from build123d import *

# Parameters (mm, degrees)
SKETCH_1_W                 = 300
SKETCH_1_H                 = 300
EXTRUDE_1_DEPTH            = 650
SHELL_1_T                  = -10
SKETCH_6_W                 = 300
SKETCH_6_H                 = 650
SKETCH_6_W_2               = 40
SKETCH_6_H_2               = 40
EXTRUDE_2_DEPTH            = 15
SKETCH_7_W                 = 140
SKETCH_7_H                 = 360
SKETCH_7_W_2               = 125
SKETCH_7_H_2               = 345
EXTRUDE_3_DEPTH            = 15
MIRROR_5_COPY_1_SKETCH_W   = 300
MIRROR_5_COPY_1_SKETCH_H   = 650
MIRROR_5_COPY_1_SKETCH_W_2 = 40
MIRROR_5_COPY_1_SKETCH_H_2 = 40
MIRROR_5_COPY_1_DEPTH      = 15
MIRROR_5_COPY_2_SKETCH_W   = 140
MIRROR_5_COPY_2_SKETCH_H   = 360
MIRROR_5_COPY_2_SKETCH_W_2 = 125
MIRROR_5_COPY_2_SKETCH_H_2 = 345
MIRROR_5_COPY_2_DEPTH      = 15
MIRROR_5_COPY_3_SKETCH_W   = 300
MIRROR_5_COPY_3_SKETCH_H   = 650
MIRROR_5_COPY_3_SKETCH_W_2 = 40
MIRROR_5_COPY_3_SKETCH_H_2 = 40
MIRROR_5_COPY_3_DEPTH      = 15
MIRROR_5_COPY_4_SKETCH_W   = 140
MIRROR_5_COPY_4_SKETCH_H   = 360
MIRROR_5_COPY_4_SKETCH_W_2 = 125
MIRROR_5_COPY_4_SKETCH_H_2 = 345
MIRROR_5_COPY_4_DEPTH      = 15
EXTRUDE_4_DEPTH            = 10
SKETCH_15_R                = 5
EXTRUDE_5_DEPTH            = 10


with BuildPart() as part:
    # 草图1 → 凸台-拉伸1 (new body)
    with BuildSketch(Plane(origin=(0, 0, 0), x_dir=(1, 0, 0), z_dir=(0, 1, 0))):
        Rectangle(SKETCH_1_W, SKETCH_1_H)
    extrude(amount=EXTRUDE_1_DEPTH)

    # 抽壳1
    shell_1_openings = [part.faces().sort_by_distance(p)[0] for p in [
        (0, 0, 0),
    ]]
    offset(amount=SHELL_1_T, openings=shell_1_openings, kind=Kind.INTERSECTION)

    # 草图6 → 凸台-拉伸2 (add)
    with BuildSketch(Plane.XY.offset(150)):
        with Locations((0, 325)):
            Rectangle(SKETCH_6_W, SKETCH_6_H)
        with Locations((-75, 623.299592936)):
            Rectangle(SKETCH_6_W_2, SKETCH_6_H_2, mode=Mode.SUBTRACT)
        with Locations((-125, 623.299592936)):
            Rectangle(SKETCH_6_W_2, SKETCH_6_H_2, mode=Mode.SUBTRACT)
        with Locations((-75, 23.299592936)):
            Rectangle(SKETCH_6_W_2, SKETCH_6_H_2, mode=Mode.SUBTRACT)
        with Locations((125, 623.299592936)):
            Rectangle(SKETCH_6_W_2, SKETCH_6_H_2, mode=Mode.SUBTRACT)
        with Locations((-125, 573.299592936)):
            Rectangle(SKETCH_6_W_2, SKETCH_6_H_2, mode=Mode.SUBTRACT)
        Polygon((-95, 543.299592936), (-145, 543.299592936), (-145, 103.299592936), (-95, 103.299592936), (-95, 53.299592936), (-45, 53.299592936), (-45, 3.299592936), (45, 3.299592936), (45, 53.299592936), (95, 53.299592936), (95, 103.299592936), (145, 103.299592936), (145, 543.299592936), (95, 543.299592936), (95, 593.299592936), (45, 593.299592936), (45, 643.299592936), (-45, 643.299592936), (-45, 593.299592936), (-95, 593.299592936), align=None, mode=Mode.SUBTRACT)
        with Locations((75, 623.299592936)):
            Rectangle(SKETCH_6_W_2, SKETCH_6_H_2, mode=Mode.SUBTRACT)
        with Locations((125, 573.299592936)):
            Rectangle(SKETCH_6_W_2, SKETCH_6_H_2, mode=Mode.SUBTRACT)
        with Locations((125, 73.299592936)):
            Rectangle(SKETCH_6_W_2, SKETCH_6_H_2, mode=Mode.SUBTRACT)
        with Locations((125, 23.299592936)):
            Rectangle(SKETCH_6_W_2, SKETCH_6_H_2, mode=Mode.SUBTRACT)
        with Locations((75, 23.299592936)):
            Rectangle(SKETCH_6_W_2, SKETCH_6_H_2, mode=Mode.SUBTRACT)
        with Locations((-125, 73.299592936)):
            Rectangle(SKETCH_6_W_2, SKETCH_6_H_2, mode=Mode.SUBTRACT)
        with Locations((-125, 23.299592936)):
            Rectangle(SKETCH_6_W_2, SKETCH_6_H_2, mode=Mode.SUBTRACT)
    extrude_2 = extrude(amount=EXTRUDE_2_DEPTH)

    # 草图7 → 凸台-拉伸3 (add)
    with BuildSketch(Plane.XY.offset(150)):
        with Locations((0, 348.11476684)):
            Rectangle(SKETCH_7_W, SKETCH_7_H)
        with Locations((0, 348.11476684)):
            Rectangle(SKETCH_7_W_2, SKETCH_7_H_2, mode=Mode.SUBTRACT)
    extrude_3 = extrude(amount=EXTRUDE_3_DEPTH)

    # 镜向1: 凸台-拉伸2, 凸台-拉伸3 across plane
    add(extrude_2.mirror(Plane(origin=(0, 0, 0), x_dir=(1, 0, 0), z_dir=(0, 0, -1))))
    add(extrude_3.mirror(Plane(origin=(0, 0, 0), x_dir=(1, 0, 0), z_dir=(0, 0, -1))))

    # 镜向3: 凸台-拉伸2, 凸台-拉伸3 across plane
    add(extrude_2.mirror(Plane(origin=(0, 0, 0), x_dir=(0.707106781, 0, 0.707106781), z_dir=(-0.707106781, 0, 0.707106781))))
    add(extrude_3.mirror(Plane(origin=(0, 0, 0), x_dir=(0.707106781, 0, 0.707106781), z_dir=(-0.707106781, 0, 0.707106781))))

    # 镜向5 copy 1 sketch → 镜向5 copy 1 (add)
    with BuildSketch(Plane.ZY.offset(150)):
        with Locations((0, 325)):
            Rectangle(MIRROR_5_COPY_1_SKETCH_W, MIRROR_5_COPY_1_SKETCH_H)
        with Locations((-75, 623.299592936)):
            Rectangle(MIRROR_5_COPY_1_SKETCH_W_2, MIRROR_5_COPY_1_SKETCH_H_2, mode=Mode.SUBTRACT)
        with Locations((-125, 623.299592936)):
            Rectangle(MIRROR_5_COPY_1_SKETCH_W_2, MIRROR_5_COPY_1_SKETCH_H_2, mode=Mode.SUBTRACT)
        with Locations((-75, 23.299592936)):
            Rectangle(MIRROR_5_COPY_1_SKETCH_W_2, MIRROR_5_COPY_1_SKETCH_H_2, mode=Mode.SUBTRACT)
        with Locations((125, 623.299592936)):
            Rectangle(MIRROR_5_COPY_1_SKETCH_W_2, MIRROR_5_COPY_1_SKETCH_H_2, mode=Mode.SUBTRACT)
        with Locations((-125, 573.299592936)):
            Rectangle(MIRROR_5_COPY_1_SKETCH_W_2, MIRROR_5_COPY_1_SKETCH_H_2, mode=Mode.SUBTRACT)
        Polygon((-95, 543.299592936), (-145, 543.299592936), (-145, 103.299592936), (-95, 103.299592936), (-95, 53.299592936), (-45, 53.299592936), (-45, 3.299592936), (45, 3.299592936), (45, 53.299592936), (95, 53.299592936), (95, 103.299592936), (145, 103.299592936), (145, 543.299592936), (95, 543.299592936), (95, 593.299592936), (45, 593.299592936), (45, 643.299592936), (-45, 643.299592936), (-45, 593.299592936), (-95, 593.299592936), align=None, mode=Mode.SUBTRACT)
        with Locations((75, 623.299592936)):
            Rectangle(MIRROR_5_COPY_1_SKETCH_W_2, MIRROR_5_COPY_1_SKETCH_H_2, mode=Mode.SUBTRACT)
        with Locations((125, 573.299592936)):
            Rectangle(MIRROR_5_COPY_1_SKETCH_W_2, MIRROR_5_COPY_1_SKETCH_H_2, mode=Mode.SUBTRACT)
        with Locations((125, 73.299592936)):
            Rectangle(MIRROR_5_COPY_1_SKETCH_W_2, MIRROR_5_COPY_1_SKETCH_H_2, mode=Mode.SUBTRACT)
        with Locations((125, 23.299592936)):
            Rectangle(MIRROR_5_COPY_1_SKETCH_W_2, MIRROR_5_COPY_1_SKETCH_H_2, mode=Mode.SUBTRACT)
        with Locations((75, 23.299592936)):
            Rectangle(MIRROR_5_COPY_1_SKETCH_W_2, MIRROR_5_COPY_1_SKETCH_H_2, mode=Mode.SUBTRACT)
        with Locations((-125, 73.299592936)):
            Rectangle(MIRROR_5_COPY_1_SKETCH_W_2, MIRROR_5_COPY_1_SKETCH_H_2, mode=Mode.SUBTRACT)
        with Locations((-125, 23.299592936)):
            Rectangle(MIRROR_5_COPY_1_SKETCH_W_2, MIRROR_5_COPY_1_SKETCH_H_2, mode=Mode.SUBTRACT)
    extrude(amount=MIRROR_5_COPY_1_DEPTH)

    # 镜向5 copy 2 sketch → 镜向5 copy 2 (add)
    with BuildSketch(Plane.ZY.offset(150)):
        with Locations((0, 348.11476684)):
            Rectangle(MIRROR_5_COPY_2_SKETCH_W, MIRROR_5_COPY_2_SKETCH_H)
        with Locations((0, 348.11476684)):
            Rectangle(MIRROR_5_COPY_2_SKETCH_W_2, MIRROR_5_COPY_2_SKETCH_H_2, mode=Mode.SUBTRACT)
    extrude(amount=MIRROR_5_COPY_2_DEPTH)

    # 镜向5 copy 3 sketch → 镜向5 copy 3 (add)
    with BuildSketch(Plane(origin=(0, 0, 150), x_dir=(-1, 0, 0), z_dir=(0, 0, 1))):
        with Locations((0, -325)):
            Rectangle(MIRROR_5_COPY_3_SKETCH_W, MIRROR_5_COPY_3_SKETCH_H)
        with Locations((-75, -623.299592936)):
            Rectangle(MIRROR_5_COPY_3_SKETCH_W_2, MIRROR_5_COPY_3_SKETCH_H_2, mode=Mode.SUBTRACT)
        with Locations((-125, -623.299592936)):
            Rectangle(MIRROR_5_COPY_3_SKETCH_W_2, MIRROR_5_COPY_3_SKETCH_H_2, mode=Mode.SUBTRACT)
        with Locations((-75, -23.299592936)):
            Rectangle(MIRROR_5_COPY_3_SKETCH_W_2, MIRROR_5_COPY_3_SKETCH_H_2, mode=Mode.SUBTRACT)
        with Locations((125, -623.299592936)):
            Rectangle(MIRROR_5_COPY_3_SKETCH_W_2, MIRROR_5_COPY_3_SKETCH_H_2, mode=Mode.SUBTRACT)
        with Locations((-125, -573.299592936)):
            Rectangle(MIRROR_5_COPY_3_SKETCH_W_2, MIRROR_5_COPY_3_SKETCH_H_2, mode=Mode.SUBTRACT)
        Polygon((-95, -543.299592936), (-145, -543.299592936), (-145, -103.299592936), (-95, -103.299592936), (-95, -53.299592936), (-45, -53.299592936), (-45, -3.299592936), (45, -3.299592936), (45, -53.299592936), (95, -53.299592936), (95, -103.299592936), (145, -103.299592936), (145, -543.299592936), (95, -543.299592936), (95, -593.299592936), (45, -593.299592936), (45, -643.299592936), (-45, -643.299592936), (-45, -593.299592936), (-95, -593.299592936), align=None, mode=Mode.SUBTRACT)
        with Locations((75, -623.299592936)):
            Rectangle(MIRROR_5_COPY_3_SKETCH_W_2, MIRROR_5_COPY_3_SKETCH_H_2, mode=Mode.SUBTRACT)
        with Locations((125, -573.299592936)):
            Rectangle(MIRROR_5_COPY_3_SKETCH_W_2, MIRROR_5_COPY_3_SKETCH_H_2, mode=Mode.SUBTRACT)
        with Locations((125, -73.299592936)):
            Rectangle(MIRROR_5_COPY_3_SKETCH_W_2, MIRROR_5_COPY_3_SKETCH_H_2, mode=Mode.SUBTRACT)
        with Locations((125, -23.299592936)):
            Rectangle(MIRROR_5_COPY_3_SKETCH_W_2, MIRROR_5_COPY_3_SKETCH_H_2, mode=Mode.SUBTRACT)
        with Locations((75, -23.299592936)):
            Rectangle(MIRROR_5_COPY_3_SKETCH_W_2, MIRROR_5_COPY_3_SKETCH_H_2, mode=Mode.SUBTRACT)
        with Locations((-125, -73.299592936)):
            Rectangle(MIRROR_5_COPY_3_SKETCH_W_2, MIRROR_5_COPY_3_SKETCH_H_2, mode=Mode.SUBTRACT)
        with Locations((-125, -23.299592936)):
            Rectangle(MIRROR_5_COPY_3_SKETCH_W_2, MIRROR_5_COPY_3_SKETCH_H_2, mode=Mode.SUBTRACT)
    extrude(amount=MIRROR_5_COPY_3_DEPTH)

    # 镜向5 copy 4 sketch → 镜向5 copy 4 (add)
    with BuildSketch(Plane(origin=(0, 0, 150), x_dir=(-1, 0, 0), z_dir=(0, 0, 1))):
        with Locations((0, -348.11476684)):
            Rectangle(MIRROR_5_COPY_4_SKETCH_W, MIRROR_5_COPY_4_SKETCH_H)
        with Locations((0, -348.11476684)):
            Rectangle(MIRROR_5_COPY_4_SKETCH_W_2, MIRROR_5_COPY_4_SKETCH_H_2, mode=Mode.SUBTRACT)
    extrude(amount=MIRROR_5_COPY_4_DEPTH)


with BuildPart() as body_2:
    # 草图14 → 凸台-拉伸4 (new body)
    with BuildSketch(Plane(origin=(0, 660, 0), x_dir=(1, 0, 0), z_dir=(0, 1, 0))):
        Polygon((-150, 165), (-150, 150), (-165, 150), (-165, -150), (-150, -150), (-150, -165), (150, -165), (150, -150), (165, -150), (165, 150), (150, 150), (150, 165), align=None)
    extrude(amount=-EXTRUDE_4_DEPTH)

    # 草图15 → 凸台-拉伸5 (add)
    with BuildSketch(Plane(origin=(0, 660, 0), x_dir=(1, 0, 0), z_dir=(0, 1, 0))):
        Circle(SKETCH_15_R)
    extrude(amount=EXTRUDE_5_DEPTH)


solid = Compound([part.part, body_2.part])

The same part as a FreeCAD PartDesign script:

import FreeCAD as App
import Part
import Sketcher
Q = App.Units.Quantity


def faces_at(feature, points):
    """Names of the faces that lie closest to the given points."""
    faces = feature.Shape.Faces
    near = lambda p: min(range(len(faces)), key=lambda i: faces[i].distToShape(Part.Vertex(*p))[0])
    return sorted({f"Face{near(p) + 1}" for p in points})


def add_polygon(sketch, points):
    """Adds a closed chain of lines whose ends are joined by coincident constraints."""
    first, n = sketch.GeometryCount, len(points)
    for a, b in zip(points, points[1:] + points[:1]):
        sketch.addGeometry(Part.LineSegment(App.Vector(*a, 0), App.Vector(*b, 0)), False)
    for i in range(n):
        sketch.addConstraint(Sketcher.Constraint("Coincident", first + i, 2, first + (i + 1) % n, 1))

doc = App.newDocument("Part")
body = doc.addObject("PartDesign::Body", "Body")

sketch1 = body.newObject("Sketcher::SketchObject", "Sketch")
sketch1.AttachmentSupport = (doc.getObject("XZ_Plane"), [""])
sketch1.MapMode = "FlatFace"
add_polygon(sketch1, [(-150, -150), (-150, 150), (150, 150), (150, -150)])
sketch1.addConstraint([
    Sketcher.Constraint("Vertical", 0),
    Sketcher.Constraint("Horizontal", 1),
    Sketcher.Constraint("Vertical", 2),
    Sketcher.Constraint("Horizontal", 3),
    Sketcher.Constraint("Symmetric", 0, 2, 2, 2, -1, 1),
    Sketcher.Constraint("Equal", 3, 0),
    Sketcher.Constraint("DistanceX", 1, 1, 1, 2, Q("300 mm")),
])
pad1 = body.newObject("PartDesign::Pad", "Pad")
pad1.Profile = sketch1
pad1.Length = 650
pad1.Reversed = True
doc.recompute()

thickness = body.newObject("PartDesign::Thickness", "Thickness")
thickness.Base = (pad1, faces_at(pad1, [(0, 0, 0)]))
thickness.Value = 10
thickness.Reversed = True
thickness.Join = "Intersection"

sketch2 = body.newObject("Sketcher::SketchObject", "Sketch001")
sketch2.AttachmentSupport = (doc.getObject("XY_Plane"), [""])
sketch2.MapMode = "FlatFace"
sketch2.AttachmentOffset = App.Placement(App.Vector(0, 0, 150), App.Rotation())
add_polygon(sketch2, [(-150, 650), (-150, 0), (150, 0), (150, 650)])
add_polygon(sketch2, [(-105, 3), (-145, 3), (-145, 43), (-105, 43)])
add_polygon(sketch2, [(-105, 53), (-145, 53), (-145, 93), (-105, 93)])
add_polygon(sketch2, [(-55, 3), (-95, 3), (-95, 43), (-55, 43)])
add_polygon(sketch2, [(95, 3), (55, 3), (55, 43), (95, 43)])
add_polygon(sketch2, [(145, 3), (105, 3), (105, 43), (145, 43)])
add_polygon(sketch2, [(145, 53), (105, 53), (105, 93), (145, 93)])
add_polygon(sketch2, [(-105, 553), (-145, 553), (-145, 593), (-105, 593)])
add_polygon(sketch2, [(-105, 603), (-145, 603), (-145, 643), (-105, 643)])
add_polygon(sketch2, [(-55, 603), (-95, 603), (-95, 643), (-55, 643)])
add_polygon(sketch2, [(-145, 543), (-95, 543), (-95, 593), (-45, 593), (-45, 643), (45, 643), (45, 593), (95, 593), (95, 543), (145, 543), (145, 103), (95, 103), (95, 53), (45, 53), (45, 3), (-45, 3), (-45, 53), (-95, 53), (-95, 103), (-145, 103)])
add_polygon(sketch2, [(95, 603), (55, 603), (55, 643), (95, 643)])
add_polygon(sketch2, [(145, 553), (105, 553), (105, 593), (145, 593)])
add_polygon(sketch2, [(145, 603), (105, 603), (105, 643), (145, 643)])
sketch2.addConstraint([
    Sketcher.Constraint("Vertical", 0),
    Sketcher.Constraint("Horizontal", 1),
    Sketcher.Constraint("Vertical", 2),
    Sketcher.Constraint("Horizontal", 3),
    Sketcher.Constraint("Horizontal", 4),
    Sketcher.Constraint("Vertical", 5),
    Sketcher.Constraint("Horizontal", 6),
    Sketcher.Constraint("Vertical", 7),
    Sketcher.Constraint("Horizontal", 8),
    Sketcher.Constraint("Vertical", 9),
    Sketcher.Constraint("Horizontal", 10),
    Sketcher.Constraint("Vertical", 11),
    Sketcher.Constraint("Horizontal", 12),
    Sketcher.Constraint("Vertical", 13),
    Sketcher.Constraint("Horizontal", 14),
    Sketcher.Constraint("Vertical", 15),
    Sketcher.Constraint("Horizontal", 16),
    Sketcher.Constraint("Vertical", 17),
    Sketcher.Constraint("Horizontal", 18),
    Sketcher.Constraint("Vertical", 19),
    Sketcher.Constraint("Horizontal", 20),
    Sketcher.Constraint("Vertical", 21),
    Sketcher.Constraint("Horizontal", 22),
    Sketcher.Constraint("Vertical", 23),
    Sketcher.Constraint("Horizontal", 24),
    Sketcher.Constraint("Vertical", 25),
    Sketcher.Constraint("Horizontal", 26),
    Sketcher.Constraint("Vertical", 27),
    Sketcher.Constraint("Horizontal", 28),
    Sketcher.Constraint("Vertical", 29),
    Sketcher.Constraint("Horizontal", 30),
    Sketcher.Constraint("Vertical", 31),
    Sketcher.Constraint("Horizontal", 32),
    Sketcher.Constraint("Vertical", 33),
    Sketcher.Constraint("Horizontal", 34),
    Sketcher.Constraint("Vertical", 35),
    Sketcher.Constraint("Horizontal", 36),
    Sketcher.Constraint("Vertical", 37),
    Sketcher.Constraint("Horizontal", 38),
    Sketcher.Constraint("Vertical", 39),
    Sketcher.Constraint("Horizontal", 40),
    Sketcher.Constraint("Vertical", 41),
    Sketcher.Constraint("Horizontal", 42),
    Sketcher.Constraint("Vertical", 43),
    Sketcher.Constraint("Horizontal", 44),
    Sketcher.Constraint("Vertical", 45),
    Sketcher.Constraint("Horizontal", 46),
    Sketcher.Constraint("Vertical", 47),
    Sketcher.Constraint("Horizontal", 48),
    Sketcher.Constraint("Vertical", 49),
    Sketcher.Constraint("Horizontal", 50),
    Sketcher.Constraint("Vertical", 51),
    Sketcher.Constraint("Horizontal", 52),
    Sketcher.Constraint("Vertical", 53),
    Sketcher.Constraint("Horizontal", 54),
    Sketcher.Constraint("Vertical", 55),
    Sketcher.Constraint("Horizontal", 56),
    Sketcher.Constraint("Vertical", 57),
    Sketcher.Constraint("Horizontal", 58),
    Sketcher.Constraint("Vertical", 59),
    Sketcher.Constraint("Horizontal", 60),
    Sketcher.Constraint("Vertical", 61),
    Sketcher.Constraint("Horizontal", 62),
    Sketcher.Constraint("Vertical", 63),
    Sketcher.Constraint("Horizontal", 64),
    Sketcher.Constraint("Vertical", 65),
    Sketcher.Constraint("Horizontal", 66),
    Sketcher.Constraint("Vertical", 67),
    Sketcher.Constraint("Horizontal", 68),
    Sketcher.Constraint("Vertical", 69),
    Sketcher.Constraint("Horizontal", 70),
    Sketcher.Constraint("Vertical", 71),
    Sketcher.Constraint("Symmetric", 0, 2, 1, 2, -1, 1),
    Sketcher.Constraint("Symmetric", 15, 2, 16, 2, -2),
    Sketcher.Constraint("Symmetric", 13, 2, 18, 2, -2),
    Sketcher.Constraint("Symmetric", 7, 2, 20, 2, -2),
    Sketcher.Constraint("Symmetric", 5, 2, 22, 2, -2),
    Sketcher.Constraint("Symmetric", 11, 2, 24, 2, -2),
    Sketcher.Constraint("Symmetric", 9, 2, 26, 2, -2),
    Sketcher.Constraint("Symmetric", 42, 2, 45, 2, -2),
    Sketcher.Constraint("Symmetric", 40, 2, 47, 2, -2),
    Sketcher.Constraint("Symmetric", 52, 2, 55, 2, -2),
    Sketcher.Constraint("Symmetric", 50, 2, 57, 2, -2),
    Sketcher.Constraint("Symmetric", 39, 2, 60, 2, -2),
    Sketcher.Constraint("Symmetric", 37, 2, 62, 2, -2),
    Sketcher.Constraint("Symmetric", 31, 2, 64, 2, -2),
    Sketcher.Constraint("Symmetric", 29, 2, 66, 2, -2),
    Sketcher.Constraint("Symmetric", 35, 2, 68, 2, -2),
    Sketcher.Constraint("Symmetric", 33, 2, 70, 2, -2),
    Sketcher.Constraint("Horizontal", 7, 2, 12, 2),
    Sketcher.Constraint("Horizontal", 6, 2, 13, 2),
    Sketcher.Constraint("Horizontal", 35, 2, 36, 2),
    Sketcher.Constraint("Horizontal", 34, 2, 37, 2),
    Sketcher.Constraint("Horizontal", 30, 2, 41, 2),
    Sketcher.Constraint("Horizontal", 38, 2, 43, 2),
    Sketcher.Constraint("Horizontal", 27, 2, 51, 2),
    Sketcher.Constraint("Horizontal", 23, 2, 53, 2),
    Sketcher.Constraint("Vertical", 5, 2, 8, 2),
    Sketcher.Constraint("Vertical", 7, 2, 10, 2),
    Sketcher.Constraint("Vertical", 9, 2, 28, 2),
    Sketcher.Constraint("Vertical", 11, 2, 30, 2),
    Sketcher.Constraint("Vertical", 29, 2, 32, 2),
    Sketcher.Constraint("Vertical", 31, 2, 34, 2),
    Sketcher.Constraint("Vertical", 13, 2, 36, 2),
    Sketcher.Constraint("Vertical", 15, 2, 38, 2),
    Sketcher.Constraint("Vertical", 37, 2, 40, 2),
    Sketcher.Constraint("Vertical", 27, 2, 48, 2),
    Sketcher.Constraint("Vertical", 47, 2, 50, 2),
    Sketcher.Constraint("Vertical", 45, 2, 52, 2),
    Sketcher.Constraint("Vertical", 33, 2, 58, 2),
    Sketcher.Constraint("Equal", 10, 12),
    Sketcher.Constraint("Equal", 40, 42),
    Sketcher.Constraint("Equal", 70, 5),
    Sketcher.Constraint("Equal", 7, 9),
    Sketcher.Constraint("Equal", 27, 29),
    Sketcher.Constraint("Equal", 31, 33),
    Sketcher.Constraint("Equal", 58, 41),
    Sketcher.Constraint("Equal", 41, 43),
    Sketcher.Constraint("Equal", 47, 51),
    Sketcher.Constraint("Equal", 51, 53),
    Sketcher.Constraint("DistanceX", 1, 1, 1, 2, Q("300 mm")),
    Sketcher.Constraint("DistanceX", 4, 2, 4, 1, Q("40 mm")),
    Sketcher.Constraint("DistanceX", 40, 1, 40, 2, Q("50 mm")),
    Sketcher.Constraint("DistanceX", 44, 1, 44, 2, Q("90 mm")),
    Sketcher.Constraint("DistanceY", 0, 2, 0, 1, Q("650 mm")),
    Sketcher.Constraint("DistanceY", 49, 2, 49, 1, Q("440 mm")),
    Sketcher.Constraint("DistanceY", -1, 1, 4, 2, Q("3.299593 mm")),
])
pad2 = body.newObject("PartDesign::Pad", "Pad001")
pad2.Profile = sketch2
pad2.Length = 15

sketch3 = body.newObject("Sketcher::SketchObject", "Sketch002")
sketch3.AttachmentSupport = (doc.getObject("XY_Plane"), [""])
sketch3.MapMode = "FlatFace"
sketch3.AttachmentOffset = App.Placement(App.Vector(0, 0, 150), App.Rotation())
add_polygon(sketch3, [(-70, 528), (-70, 168), (70, 168), (70, 528)])
add_polygon(sketch3, [(62, 176), (-62, 176), (-62, 521), (62, 521)])
sketch3.addConstraint([
    Sketcher.Constraint("Vertical", 0),
    Sketcher.Constraint("Horizontal", 1),
    Sketcher.Constraint("Vertical", 2),
    Sketcher.Constraint("Horizontal", 3),
    Sketcher.Constraint("Horizontal", 4),
    Sketcher.Constraint("Vertical", 5),
    Sketcher.Constraint("Horizontal", 6),
    Sketcher.Constraint("Vertical", 7),
    Sketcher.Constraint("DistanceX", 1, 1, 1, 2, Q("140 mm")),
    Sketcher.Constraint("DistanceX", 4, 2, 4, 1, Q("125 mm")),
    Sketcher.Constraint("DistanceY", 0, 2, 0, 1, Q("360 mm")),
    Sketcher.Constraint("DistanceY", 5, 1, 5, 2, Q("345 mm")),
    Sketcher.Constraint("DistanceX", 0, 2, -1, 1, Q("70 mm")),
    Sketcher.Constraint("DistanceX", 4, 2, -1, 1, Q("62.5 mm")),
    Sketcher.Constraint("DistanceY", 0, 2, 4, 2, Q("7.5 mm")),
    Sketcher.Constraint("DistanceY", -1, 1, 0, 2, Q("168.114767 mm")),
])
pad3 = body.newObject("PartDesign::Pad", "Pad002")
pad3.Profile = sketch3
pad3.Length = 15
doc.recompute()

mirrored = body.newObject("PartDesign::Mirrored", "Mirrored")
mirrored.Originals = [pad2, pad3]
mirrored.MirrorPlane = (doc.getObject("XY_Plane"), [""])
body.Tip = mirrored
doc.recompute()

datumplane = body.newObject("PartDesign::Plane", "DatumPlane")
datumplane.Placement = App.Placement(App.Vector(0, 0, 0), App.Rotation(App.Vector(-0.707106781, 0, -0.707106781), App.Vector(0, -1, 0), App.Vector(-0.707106781, 0, 0.707106781), "ZXY"))
mirrored2 = body.newObject("PartDesign::Mirrored", "Mirrored001")
mirrored2.Originals = [pad2, pad3]
mirrored2.MirrorPlane = (datumplane, [""])
body.Tip = mirrored2

sketch4 = body.newObject("Sketcher::SketchObject", "Sketch003")
sketch4.AttachmentSupport = (doc.getObject("YZ_Plane"), [""])
sketch4.MapMode = "FlatFace"
sketch4.AttachmentOffset = App.Placement(App.Vector(0, 0, -150), App.Rotation())
add_polygon(sketch4, [(650, -150), (0, -150), (0, 150), (650, 150)])
add_polygon(sketch4, [(3, -105), (3, -145), (43, -145), (43, -105)])
add_polygon(sketch4, [(53, -105), (53, -145), (93, -145), (93, -105)])
add_polygon(sketch4, [(3, -55), (3, -95), (43, -95), (43, -55)])
add_polygon(sketch4, [(3, 95), (3, 55), (43, 55), (43, 95)])
add_polygon(sketch4, [(3, 145), (3, 105), (43, 105), (43, 145)])
add_polygon(sketch4, [(53, 145), (53, 105), (93, 105), (93, 145)])
add_polygon(sketch4, [(553, -105), (553, -145), (593, -145), (593, -105)])
add_polygon(sketch4, [(603, -105), (603, -145), (643, -145), (643, -105)])
add_polygon(sketch4, [(603, -55), (603, -95), (643, -95), (643, -55)])
add_polygon(sketch4, [(543, -145), (543, -95), (593, -95), (593, -45), (643, -45), (643, 45), (593, 45), (593, 95), (543, 95), (543, 145), (103, 145), (103, 95), (53, 95), (53, 45), (3, 45), (3, -45), (53, -45), (53, -95), (103, -95), (103, -145)])
add_polygon(sketch4, [(603, 95), (603, 55), (643, 55), (643, 95)])
add_polygon(sketch4, [(553, 145), (553, 105), (593, 105), (593, 145)])
add_polygon(sketch4, [(603, 145), (603, 105), (643, 105), (643, 145)])
sketch4.addConstraint([
    Sketcher.Constraint("Horizontal", 0),
    Sketcher.Constraint("Vertical", 1),
    Sketcher.Constraint("Horizontal", 2),
    Sketcher.Constraint("Vertical", 3),
    Sketcher.Constraint("Vertical", 4),
    Sketcher.Constraint("Horizontal", 5),
    Sketcher.Constraint("Vertical", 6),
    Sketcher.Constraint("Horizontal", 7),
    Sketcher.Constraint("Vertical", 8),
    Sketcher.Constraint("Horizontal", 9),
    Sketcher.Constraint("Vertical", 10),
    Sketcher.Constraint("Horizontal", 11),
    Sketcher.Constraint("Vertical", 12),
    Sketcher.Constraint("Horizontal", 13),
    Sketcher.Constraint("Vertical", 14),
    Sketcher.Constraint("Horizontal", 15),
    Sketcher.Constraint("Vertical", 16),
    Sketcher.Constraint("Horizontal", 17),
    Sketcher.Constraint("Vertical", 18),
    Sketcher.Constraint("Horizontal", 19),
    Sketcher.Constraint("Vertical", 20),
    Sketcher.Constraint("Horizontal", 21),
    Sketcher.Constraint("Vertical", 22),
    Sketcher.Constraint("Horizontal", 23),
    Sketcher.Constraint("Vertical", 24),
    Sketcher.Constraint("Horizontal", 25),
    Sketcher.Constraint("Vertical", 26),
    Sketcher.Constraint("Horizontal", 27),
    Sketcher.Constraint("Vertical", 28),
    Sketcher.Constraint("Horizontal", 29),
    Sketcher.Constraint("Vertical", 30),
    Sketcher.Constraint("Horizontal", 31),
    Sketcher.Constraint("Vertical", 32),
    Sketcher.Constraint("Horizontal", 33),
    Sketcher.Constraint("Vertical", 34),
    Sketcher.Constraint("Horizontal", 35),
    Sketcher.Constraint("Vertical", 36),
    Sketcher.Constraint("Horizontal", 37),
    Sketcher.Constraint("Vertical", 38),
    Sketcher.Constraint("Horizontal", 39),
    Sketcher.Constraint("Vertical", 40),
    Sketcher.Constraint("Horizontal", 41),
    Sketcher.Constraint("Vertical", 42),
    Sketcher.Constraint("Horizontal", 43),
    Sketcher.Constraint("Vertical", 44),
    Sketcher.Constraint("Horizontal", 45),
    Sketcher.Constraint("Vertical", 46),
    Sketcher.Constraint("Horizontal", 47),
    Sketcher.Constraint("Vertical", 48),
    Sketcher.Constraint("Horizontal", 49),
    Sketcher.Constraint("Vertical", 50),
    Sketcher.Constraint("Horizontal", 51),
    Sketcher.Constraint("Vertical", 52),
    Sketcher.Constraint("Horizontal", 53),
    Sketcher.Constraint("Vertical", 54),
    Sketcher.Constraint("Horizontal", 55),
    Sketcher.Constraint("Vertical", 56),
    Sketcher.Constraint("Horizontal", 57),
    Sketcher.Constraint("Vertical", 58),
    Sketcher.Constraint("Horizontal", 59),
    Sketcher.Constraint("Vertical", 60),
    Sketcher.Constraint("Horizontal", 61),
    Sketcher.Constraint("Vertical", 62),
    Sketcher.Constraint("Horizontal", 63),
    Sketcher.Constraint("Vertical", 64),
    Sketcher.Constraint("Horizontal", 65),
    Sketcher.Constraint("Vertical", 66),
    Sketcher.Constraint("Horizontal", 67),
    Sketcher.Constraint("Vertical", 68),
    Sketcher.Constraint("Horizontal", 69),
    Sketcher.Constraint("Vertical", 70),
    Sketcher.Constraint("Horizontal", 71),
    Sketcher.Constraint("Symmetric", 0, 2, 1, 2, -1, 1),
    Sketcher.Constraint("Symmetric", 15, 2, 16, 2, -1),
    Sketcher.Constraint("Symmetric", 13, 2, 18, 2, -1),
    Sketcher.Constraint("Symmetric", 7, 2, 20, 2, -1),
    Sketcher.Constraint("Symmetric", 5, 2, 22, 2, -1),
    Sketcher.Constraint("Symmetric", 11, 2, 24, 2, -1),
    Sketcher.Constraint("Symmetric", 9, 2, 26, 2, -1),
    Sketcher.Constraint("Symmetric", 42, 2, 45, 2, -1),
    Sketcher.Constraint("Symmetric", 40, 2, 47, 2, -1),
    Sketcher.Constraint("Symmetric", 52, 2, 55, 2, -1),
    Sketcher.Constraint("Symmetric", 50, 2, 57, 2, -1),
    Sketcher.Constraint("Symmetric", 39, 2, 60, 2, -1),
    Sketcher.Constraint("Symmetric", 37, 2, 62, 2, -1),
    Sketcher.Constraint("Symmetric", 31, 2, 64, 2, -1),
    Sketcher.Constraint("Symmetric", 29, 2, 66, 2, -1),
    Sketcher.Constraint("Symmetric", 35, 2, 68, 2, -1),
    Sketcher.Constraint("Symmetric", 33, 2, 70, 2, -1),
    Sketcher.Constraint("Horizontal", 5, 2, 8, 2),
    Sketcher.Constraint("Horizontal", 7, 2, 10, 2),
    Sketcher.Constraint("Horizontal", 9, 2, 28, 2),
    Sketcher.Constraint("Horizontal", 11, 2, 30, 2),
    Sketcher.Constraint("Horizontal", 29, 2, 32, 2),
    Sketcher.Constraint("Horizontal", 31, 2, 34, 2),
    Sketcher.Constraint("Horizontal", 13, 2, 36, 2),
    Sketcher.Constraint("Horizontal", 15, 2, 38, 2),
    Sketcher.Constraint("Horizontal", 37, 2, 40, 2),
    Sketcher.Constraint("Horizontal", 27, 2, 48, 2),
    Sketcher.Constraint("Horizontal", 47, 2, 50, 2),
    Sketcher.Constraint("Horizontal", 45, 2, 52, 2),
    Sketcher.Constraint("Horizontal", 33, 2, 58, 2),
    Sketcher.Constraint("Vertical", 7, 2, 12, 2),
    Sketcher.Constraint("Vertical", 6, 2, 13, 2),
    Sketcher.Constraint("Vertical", 35, 2, 36, 2),
    Sketcher.Constraint("Vertical", 34, 2, 37, 2),
    Sketcher.Constraint("Vertical", 30, 2, 41, 2),
    Sketcher.Constraint("Vertical", 38, 2, 43, 2),
    Sketcher.Constraint("Vertical", 27, 2, 51, 2),
    Sketcher.Constraint("Vertical", 23, 2, 53, 2),
    Sketcher.Constraint("Equal", 7, 9),
    Sketcher.Constraint("Equal", 27, 29),
    Sketcher.Constraint("Equal", 31, 33),
    Sketcher.Constraint("Equal", 41, 43),
    Sketcher.Constraint("Equal", 47, 51),
    Sketcher.Constraint("Equal", 51, 53),
    Sketcher.Constraint("Equal", 71, 4),
    Sketcher.Constraint("Equal", 10, 12),
    Sketcher.Constraint("Equal", 57, 40),
    Sketcher.Constraint("Equal", 40, 42),
    Sketcher.Constraint("DistanceX", 0, 2, 0, 1, Q("650 mm")),
    Sketcher.Constraint("DistanceX", 5, 1, 5, 2, Q("40 mm")),
    Sketcher.Constraint("DistanceX", 41, 1, 41, 2, Q("50 mm")),
    Sketcher.Constraint("DistanceX", 49, 2, 49, 1, Q("440 mm")),
    Sketcher.Constraint("DistanceY", 1, 1, 1, 2, Q("300 mm")),
    Sketcher.Constraint("DistanceY", 44, 1, 44, 2, Q("90 mm")),
    Sketcher.Constraint("DistanceX", -1, 1, 4, 2, Q("3.299593 mm")),
])
pad4 = body.newObject("PartDesign::Pad", "Pad003")
pad4.Profile = sketch4
pad4.Length = 15
pad4.Reversed = True

sketch5 = body.newObject("Sketcher::SketchObject", "Sketch004")
sketch5.AttachmentSupport = (doc.getObject("YZ_Plane"), [""])
sketch5.MapMode = "FlatFace"
sketch5.AttachmentOffset = App.Placement(App.Vector(0, 0, -150), App.Rotation())
add_polygon(sketch5, [(528, -70), (168, -70), (168, 70), (528, 70)])
add_polygon(sketch5, [(176, 62), (176, -62), (521, -62), (521, 62)])
sketch5.addConstraint([
    Sketcher.Constraint("Horizontal", 0),
    Sketcher.Constraint("Vertical", 1),
    Sketcher.Constraint("Horizontal", 2),
    Sketcher.Constraint("Vertical", 3),
    Sketcher.Constraint("Vertical", 4),
    Sketcher.Constraint("Horizontal", 5),
    Sketcher.Constraint("Vertical", 6),
    Sketcher.Constraint("Horizontal", 7),
    Sketcher.Constraint("DistanceX", 0, 2, 0, 1, Q("360 mm")),
    Sketcher.Constraint("DistanceX", 5, 1, 5, 2, Q("345 mm")),
    Sketcher.Constraint("DistanceY", 1, 1, 1, 2, Q("140 mm")),
    Sketcher.Constraint("DistanceY", 4, 2, 4, 1, Q("125 mm")),
    Sketcher.Constraint("DistanceY", 0, 2, -1, 1, Q("70 mm")),
    Sketcher.Constraint("DistanceY", 4, 2, -1, 1, Q("62.5 mm")),
    Sketcher.Constraint("DistanceX", 0, 2, 4, 2, Q("7.5 mm")),
    Sketcher.Constraint("DistanceX", -1, 1, 0, 2, Q("168.114767 mm")),
])
pad5 = body.newObject("PartDesign::Pad", "Pad004")
pad5.Profile = sketch5
pad5.Length = 15
pad5.Reversed = True

sketch6 = body.newObject("Sketcher::SketchObject", "Sketch005")
sketch6.AttachmentSupport = (doc.getObject("XY_Plane"), [""])
sketch6.MapMode = "FlatFace"
sketch6.AttachmentOffset = App.Placement(App.Vector(0, 0, 150), App.Rotation())
add_polygon(sketch6, [(150, 0), (150, 650), (-150, 650), (-150, 0)])
add_polygon(sketch6, [(105, 643), (145, 643), (145, 603), (105, 603)])
add_polygon(sketch6, [(105, 593), (145, 593), (145, 553), (105, 553)])
add_polygon(sketch6, [(55, 643), (95, 643), (95, 603), (55, 603)])
add_polygon(sketch6, [(-95, 643), (-55, 643), (-55, 603), (-95, 603)])
add_polygon(sketch6, [(-145, 643), (-105, 643), (-105, 603), (-145, 603)])
add_polygon(sketch6, [(-145, 593), (-105, 593), (-105, 553), (-145, 553)])
add_polygon(sketch6, [(105, 93), (145, 93), (145, 53), (105, 53)])
add_polygon(sketch6, [(105, 43), (145, 43), (145, 3), (105, 3)])
add_polygon(sketch6, [(55, 43), (95, 43), (95, 3), (55, 3)])
add_polygon(sketch6, [(95, 593), (95, 543), (145, 543), (145, 103), (95, 103), (95, 53), (45, 53), (45, 3), (-45, 3), (-45, 53), (-95, 53), (-95, 103), (-145, 103), (-145, 543), (-95, 543), (-95, 593), (-45, 593), (-45, 643), (45, 643), (45, 593)])
add_polygon(sketch6, [(-95, 43), (-55, 43), (-55, 3), (-95, 3)])
add_polygon(sketch6, [(-145, 93), (-105, 93), (-105, 53), (-145, 53)])
add_polygon(sketch6, [(-145, 43), (-105, 43), (-105, 3), (-145, 3)])
sketch6.addConstraint([
    Sketcher.Constraint("Vertical", 0),
    Sketcher.Constraint("Horizontal", 1),
    Sketcher.Constraint("Vertical", 2),
    Sketcher.Constraint("Horizontal", 3),
    Sketcher.Constraint("Horizontal", 4),
    Sketcher.Constraint("Vertical", 5),
    Sketcher.Constraint("Horizontal", 6),
    Sketcher.Constraint("Vertical", 7),
    Sketcher.Constraint("Horizontal", 8),
    Sketcher.Constraint("Vertical", 9),
    Sketcher.Constraint("Horizontal", 10),
    Sketcher.Constraint("Vertical", 11),
    Sketcher.Constraint("Horizontal", 12),
    Sketcher.Constraint("Vertical", 13),
    Sketcher.Constraint("Horizontal", 14),
    Sketcher.Constraint("Vertical", 15),
    Sketcher.Constraint("Horizontal", 16),
    Sketcher.Constraint("Vertical", 17),
    Sketcher.Constraint("Horizontal", 18),
    Sketcher.Constraint("Vertical", 19),
    Sketcher.Constraint("Horizontal", 20),
    Sketcher.Constraint("Vertical", 21),
    Sketcher.Constraint("Horizontal", 22),
    Sketcher.Constraint("Vertical", 23),
    Sketcher.Constraint("Horizontal", 24),
    Sketcher.Constraint("Vertical", 25),
    Sketcher.Constraint("Horizontal", 26),
    Sketcher.Constraint("Vertical", 27),
    Sketcher.Constraint("Horizontal", 28),
    Sketcher.Constraint("Vertical", 29),
    Sketcher.Constraint("Horizontal", 30),
    Sketcher.Constraint("Vertical", 31),
    Sketcher.Constraint("Horizontal", 32),
    Sketcher.Constraint("Vertical", 33),
    Sketcher.Constraint("Horizontal", 34),
    Sketcher.Constraint("Vertical", 35),
    Sketcher.Constraint("Horizontal", 36),
    Sketcher.Constraint("Vertical", 37),
    Sketcher.Constraint("Horizontal", 38),
    Sketcher.Constraint("Vertical", 39),
    Sketcher.Constraint("Vertical", 40),
    Sketcher.Constraint("Horizontal", 41),
    Sketcher.Constraint("Vertical", 42),
    Sketcher.Constraint("Horizontal", 43),
    Sketcher.Constraint("Vertical", 44),
    Sketcher.Constraint("Horizontal", 45),
    Sketcher.Constraint("Vertical", 46),
    Sketcher.Constraint("Horizontal", 47),
    Sketcher.Constraint("Vertical", 48),
    Sketcher.Constraint("Horizontal", 49),
    Sketcher.Constraint("Vertical", 50),
    Sketcher.Constraint("Horizontal", 51),
    Sketcher.Constraint("Vertical", 52),
    Sketcher.Constraint("Horizontal", 53),
    Sketcher.Constraint("Vertical", 54),
    Sketcher.Constraint("Horizontal", 55),
    Sketcher.Constraint("Vertical", 56),
    Sketcher.Constraint("Horizontal", 57),
    Sketcher.Constraint("Vertical", 58),
    Sketcher.Constraint("Horizontal", 59),
    Sketcher.Constraint("Horizontal", 60),
    Sketcher.Constraint("Vertical", 61),
    Sketcher.Constraint("Horizontal", 62),
    Sketcher.Constraint("Vertical", 63),
    Sketcher.Constraint("Horizontal", 64),
    Sketcher.Constraint("Vertical", 65),
    Sketcher.Constraint("Horizontal", 66),
    Sketcher.Constraint("Vertical", 67),
    Sketcher.Constraint("Horizontal", 68),
    Sketcher.Constraint("Vertical", 69),
    Sketcher.Constraint("Horizontal", 70),
    Sketcher.Constraint("Vertical", 71),
    Sketcher.Constraint("Symmetric", 2, 2, 3, 2, -1, 1),
    Sketcher.Constraint("Symmetric", 15, 2, 16, 2, -2),
    Sketcher.Constraint("Symmetric", 13, 2, 18, 2, -2),
    Sketcher.Constraint("Symmetric", 7, 2, 20, 2, -2),
    Sketcher.Constraint("Symmetric", 5, 2, 22, 2, -2),
    Sketcher.Constraint("Symmetric", 11, 2, 24, 2, -2),
    Sketcher.Constraint("Symmetric", 9, 2, 26, 2, -2),
    Sketcher.Constraint("Symmetric", 45, 2, 48, 2, -2),
    Sketcher.Constraint("Symmetric", 43, 2, 50, 2, -2),
    Sketcher.Constraint("Symmetric", 41, 2, 52, 2, -2),
    Sketcher.Constraint("Symmetric", 55, 2, 58, 2, -2),
    Sketcher.Constraint("Symmetric", 39, 2, 60, 2, -2),
    Sketcher.Constraint("Symmetric", 37, 2, 62, 2, -2),
    Sketcher.Constraint("Symmetric", 31, 2, 64, 2, -2),
    Sketcher.Constraint("Symmetric", 29, 2, 66, 2, -2),
    Sketcher.Constraint("Symmetric", 35, 2, 68, 2, -2),
    Sketcher.Constraint("Symmetric", 33, 2, 70, 2, -2),
    Sketcher.Constraint("Horizontal", 7, 2, 12, 2),
    Sketcher.Constraint("Horizontal", 6, 2, 13, 2),
    Sketcher.Constraint("Horizontal", 35, 2, 36, 2),
    Sketcher.Constraint("Horizontal", 34, 2, 37, 2),
    Sketcher.Constraint("Horizontal", 30, 2, 44, 2),
    Sketcher.Constraint("Horizontal", 38, 2, 46, 2),
    Sketcher.Constraint("Horizontal", 27, 2, 54, 2),
    Sketcher.Constraint("Horizontal", 23, 2, 56, 2),
    Sketcher.Constraint("Vertical", 5, 2, 8, 2),
    Sketcher.Constraint("Vertical", 7, 2, 10, 2),
    Sketcher.Constraint("Vertical", 9, 2, 28, 2),
    Sketcher.Constraint("Vertical", 11, 2, 30, 2),
    Sketcher.Constraint("Vertical", 29, 2, 32, 2),
    Sketcher.Constraint("Vertical", 31, 2, 34, 2),
    Sketcher.Constraint("Vertical", 13, 2, 36, 2),
    Sketcher.Constraint("Vertical", 15, 2, 38, 2),
    Sketcher.Constraint("Vertical", 37, 2, 40, 2),
    Sketcher.Constraint("Vertical", 33, 2, 41, 2),
    Sketcher.Constraint("Vertical", 40, 2, 43, 2),
    Sketcher.Constraint("Vertical", 50, 2, 53, 2),
    Sketcher.Constraint("Vertical", 48, 2, 55, 2),
    Sketcher.Constraint("Equal", 10, 12),
    Sketcher.Constraint("Equal", 43, 45),
    Sketcher.Constraint("Equal", 70, 5),
    Sketcher.Constraint("Equal", 7, 9),
    Sketcher.Constraint("Equal", 27, 29),
    Sketcher.Constraint("Equal", 31, 33),
    Sketcher.Constraint("Equal", 59, 40),
    Sketcher.Constraint("Equal", 40, 44),
    Sketcher.Constraint("Equal", 44, 46),
    Sketcher.Constraint("Equal", 54, 56),
    Sketcher.Constraint("DistanceX", 1, 2, 1, 1, Q("300 mm")),
    Sketcher.Constraint("DistanceX", 4, 1, 4, 2, Q("40 mm")),
    Sketcher.Constraint("DistanceX", 41, 1, 41, 2, Q("50 mm")),
    Sketcher.Constraint("DistanceX", 47, 2, 47, 1, Q("90 mm")),
    Sketcher.Constraint("DistanceY", 0, 1, 0, 2, Q("650 mm")),
    Sketcher.Constraint("DistanceY", 42, 2, 42, 1, Q("440 mm")),
    Sketcher.Constraint("DistanceY", -1, 1, 4, 2, Q("643.299593 mm")),
])
pad6 = body.newObject("PartDesign::Pad", "Pad005")
pad6.Profile = sketch6
pad6.Length = 15

sketch7 = body.newObject("Sketcher::SketchObject", "Sketch006")
sketch7.AttachmentSupport = (doc.getObject("XY_Plane"), [""])
sketch7.MapMode = "FlatFace"
sketch7.AttachmentOffset = App.Placement(App.Vector(0, 0, 150), App.Rotation())
add_polygon(sketch7, [(70, 168), (70, 528), (-70, 528), (-70, 168)])
add_polygon(sketch7, [(-62, 521), (62, 521), (62, 176), (-62, 176)])
sketch7.addConstraint([
    Sketcher.Constraint("Vertical", 0),
    Sketcher.Constraint("Horizontal", 1),
    Sketcher.Constraint("Vertical", 2),
    Sketcher.Constraint("Horizontal", 3),
    Sketcher.Constraint("Horizontal", 4),
    Sketcher.Constraint("Vertical", 5),
    Sketcher.Constraint("Horizontal", 6),
    Sketcher.Constraint("Vertical", 7),
    Sketcher.Constraint("DistanceX", 1, 2, 1, 1, Q("140 mm")),
    Sketcher.Constraint("DistanceX", 4, 1, 4, 2, Q("125 mm")),
    Sketcher.Constraint("DistanceY", 0, 1, 0, 2, Q("360 mm")),
    Sketcher.Constraint("DistanceY", 5, 2, 5, 1, Q("345 mm")),
    Sketcher.Constraint("DistanceX", -1, 1, 0, 2, Q("70 mm")),
    Sketcher.Constraint("DistanceX", -1, 1, 4, 2, Q("62.5 mm")),
    Sketcher.Constraint("DistanceY", 4, 2, 0, 2, Q("7.5 mm")),
    Sketcher.Constraint("DistanceY", -1, 1, 0, 2, Q("528.114767 mm")),
])
pad7 = body.newObject("PartDesign::Pad", "Pad006")
pad7.Profile = sketch7
pad7.Length = 15
body2 = doc.addObject("PartDesign::Body", "Body001")

sketch8 = body2.newObject("Sketcher::SketchObject", "Sketch007")
sketch8.AttachmentSupport = (doc.getObject("XZ_Plane001"), [""])
sketch8.MapMode = "FlatFace"
sketch8.AttachmentOffset = App.Placement(App.Vector(0, 0, -660), App.Rotation())
add_polygon(sketch8, [(-150, -165), (-150, -150), (-165, -150), (-165, 150), (-150, 150), (-150, 165), (150, 165), (150, 150), (165, 150), (165, -150), (150, -150), (150, -165)])
sketch8.addConstraint([
    Sketcher.Constraint("Vertical", 0),
    Sketcher.Constraint("Horizontal", 1),
    Sketcher.Constraint("Vertical", 2),
    Sketcher.Constraint("Horizontal", 3),
    Sketcher.Constraint("Vertical", 4),
    Sketcher.Constraint("Horizontal", 5),
    Sketcher.Constraint("Vertical", 6),
    Sketcher.Constraint("Horizontal", 7),
    Sketcher.Constraint("Vertical", 8),
    Sketcher.Constraint("Horizontal", 9),
    Sketcher.Constraint("Vertical", 10),
    Sketcher.Constraint("Horizontal", 11),
    Sketcher.Constraint("Symmetric", 0, 2, 6, 2, -1, 1),
    Sketcher.Constraint("Symmetric", 2, 2, 8, 2, -1, 1),
    Sketcher.Constraint("Symmetric", 4, 2, 10, 2, -1, 1),
    Sketcher.Constraint("Symmetric", 3, 2, 6, 2, -2),
    Sketcher.Constraint("Equal", 9, 0),
    Sketcher.Constraint("Equal", 11, 2),
    Sketcher.Constraint("DistanceX", 1, 2, 1, 1, Q("15 mm")),
    Sketcher.Constraint("DistanceX", 5, 1, 5, 2, Q("300 mm")),
])
pad8 = body2.newObject("PartDesign::Pad", "Pad007")
pad8.Profile = sketch8
pad8.Length = 10

sketch9 = body2.newObject("Sketcher::SketchObject", "Sketch008")
sketch9.AttachmentSupport = (doc.getObject("XZ_Plane001"), [""])
sketch9.MapMode = "FlatFace"
sketch9.AttachmentOffset = App.Placement(App.Vector(0, 0, -660), App.Rotation())
sketch9.addGeometry(Part.Circle(App.Vector(0, 0, 0), App.Vector(0, 0, 1), 5), False)
sketch9.addConstraint([
    Sketcher.Constraint("Coincident", 0, 3, -1, 1),
    Sketcher.Constraint("Diameter", 0, Q("10 mm")),
])
pad9 = body2.newObject("PartDesign::Pad", "Pad008")
pad9.Profile = sketch9
pad9.Length = 10
pad9.Reversed = True

doc.recompute()
